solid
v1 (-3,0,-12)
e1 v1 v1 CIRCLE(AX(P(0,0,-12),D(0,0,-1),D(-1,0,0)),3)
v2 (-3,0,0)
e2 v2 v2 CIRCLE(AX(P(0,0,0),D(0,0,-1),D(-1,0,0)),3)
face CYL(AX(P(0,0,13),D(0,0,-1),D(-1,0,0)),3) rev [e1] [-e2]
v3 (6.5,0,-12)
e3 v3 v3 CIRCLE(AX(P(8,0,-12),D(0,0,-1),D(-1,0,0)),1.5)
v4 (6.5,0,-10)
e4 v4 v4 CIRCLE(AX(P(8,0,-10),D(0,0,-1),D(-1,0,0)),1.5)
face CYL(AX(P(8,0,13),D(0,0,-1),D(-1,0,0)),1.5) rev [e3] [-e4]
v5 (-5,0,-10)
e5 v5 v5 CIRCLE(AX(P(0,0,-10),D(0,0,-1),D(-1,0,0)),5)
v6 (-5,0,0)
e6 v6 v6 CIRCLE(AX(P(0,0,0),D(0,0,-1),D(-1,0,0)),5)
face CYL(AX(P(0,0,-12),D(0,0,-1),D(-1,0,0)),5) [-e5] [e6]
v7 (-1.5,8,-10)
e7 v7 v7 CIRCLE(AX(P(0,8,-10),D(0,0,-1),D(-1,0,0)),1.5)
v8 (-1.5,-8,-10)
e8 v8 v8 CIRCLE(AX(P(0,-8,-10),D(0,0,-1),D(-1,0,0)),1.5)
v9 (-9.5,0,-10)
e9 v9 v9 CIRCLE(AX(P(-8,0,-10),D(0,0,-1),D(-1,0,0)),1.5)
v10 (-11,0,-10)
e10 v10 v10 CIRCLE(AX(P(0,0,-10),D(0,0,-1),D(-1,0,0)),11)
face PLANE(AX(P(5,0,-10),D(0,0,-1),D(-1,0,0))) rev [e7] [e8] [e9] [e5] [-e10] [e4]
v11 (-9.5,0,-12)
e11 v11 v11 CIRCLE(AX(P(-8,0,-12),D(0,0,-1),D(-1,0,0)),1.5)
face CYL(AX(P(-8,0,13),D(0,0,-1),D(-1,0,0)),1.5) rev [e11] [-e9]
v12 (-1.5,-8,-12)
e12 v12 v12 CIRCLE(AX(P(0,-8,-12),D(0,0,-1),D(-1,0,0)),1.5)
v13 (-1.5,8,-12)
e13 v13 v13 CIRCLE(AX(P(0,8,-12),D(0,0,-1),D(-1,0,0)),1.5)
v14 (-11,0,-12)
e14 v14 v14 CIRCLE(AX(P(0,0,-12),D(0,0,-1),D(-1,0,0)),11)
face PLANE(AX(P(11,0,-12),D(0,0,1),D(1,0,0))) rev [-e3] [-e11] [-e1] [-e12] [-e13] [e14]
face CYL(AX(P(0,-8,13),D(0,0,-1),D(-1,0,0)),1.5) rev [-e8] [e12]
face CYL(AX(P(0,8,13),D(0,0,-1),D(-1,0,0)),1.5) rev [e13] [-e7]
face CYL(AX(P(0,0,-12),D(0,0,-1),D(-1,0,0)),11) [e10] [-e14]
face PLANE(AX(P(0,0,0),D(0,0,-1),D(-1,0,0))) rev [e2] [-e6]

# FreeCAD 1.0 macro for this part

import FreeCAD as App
import Part
import Sketcher
from FreeCAD import Vector
Q = App.Units.Quantity


def add_polygon(sketch, points):
    """Adds a closed chain of lines whose ends are joined by coincident constraints."""
    first, n = sketch.GeometryCount, len(points)
    for a, b in zip(points, points[1:] + points[:1]):
        sketch.addGeometry(Part.LineSegment(App.Vector(*a, 0), App.Vector(*b, 0)), False)
    for i in range(n):
        sketch.addConstraint(Sketcher.Constraint("Coincident", first + i, 2, first + (i + 1) % n, 1))

doc = App.newDocument("Part")
body = doc.addObject("PartDesign::Body", "Body")

sketch1 = body.newObject("Sketcher::SketchObject", "Sketch")
sketch1.AttachmentSupport = (doc.getObject("XZ_Plane"), [""])
sketch1.MapMode = "FlatFace"
add_polygon(sketch1, [(0, 0), (5, 0), (5, -10), (11, -10), (11, -12), (0, -12)])
sketch1.addConstraint(Sketcher.Constraint("Horizontal", 0))
sketch1.addConstraint(Sketcher.Constraint("Vertical", 1))
sketch1.addConstraint(Sketcher.Constraint("Horizontal", 2))
sketch1.addConstraint(Sketcher.Constraint("Vertical", 3))
sketch1.addConstraint(Sketcher.Constraint("Horizontal", 4))
sketch1.addConstraint(Sketcher.Constraint("Vertical", 5))
sketch1.addConstraint(Sketcher.Constraint("Coincident", 5, 2, -1, 1))
sketch1.addConstraint(Sketcher.Constraint("DistanceX", 0, 1, 0, 2, Q("5 mm")))
sketch1.addConstraint(Sketcher.Constraint("DistanceX", 2, 1, 2, 2, Q("6 mm")))
sketch1.addConstraint(Sketcher.Constraint("DistanceY", 1, 2, 1, 1, Q("10 mm")))
sketch1.addConstraint(Sketcher.Constraint("DistanceY", 3, 2, 3, 1, Q("2 mm")))
revolution = body.newObject("PartDesign::Revolution", "Revolution")
revolution.Profile = sketch1
revolution.ReferenceAxis = (sketch1, ["V_Axis"])
revolution.Angle = 360

sketch2 = body.newObject("Sketcher::SketchObject", "Sketch001")
sketch2.AttachmentSupport = (doc.getObject("XY_Plane"), [""])
sketch2.MapMode = "FlatFace"
sketch2.AttachmentOffset = App.Placement(Vector(0, 0, -12), App.Rotation())
sketch2.addGeometry(Part.Circle(Vector(-8, 0, 0), Vector(0, 0, 1), 1.5), False)
sketch2.addGeometry(Part.Circle(Vector(0, 0, 0), Vector(0, 0, 1), 3), False)
sketch2.addGeometry(Part.Circle(Vector(0, -8, 0), Vector(0, 0, 1), 1.5), False)
sketch2.addGeometry(Part.Circle(Vector(8, 0, 0), Vector(0, 0, 1), 1.5), False)
sketch2.addGeometry(Part.Circle(Vector(0, 8, 0), Vector(0, 0, 1), 1.5), False)
sketch2.addConstraint(Sketcher.Constraint("Coincident", 1, 3, -1, 1))
sketch2.addConstraint(Sketcher.Constraint("Equal", 0, 2))
sketch2.addConstraint(Sketcher.Constraint("Equal", 2, 3))
sketch2.addConstraint(Sketcher.Constraint("Equal", 3, 4))
sketch2.addConstraint(Sketcher.Constraint("Symmetric", 0, 3, 3, 3, -1, 1))
sketch2.addConstraint(Sketcher.Constraint("Symmetric", 2, 3, 4, 3, -1, 1))
sketch2.addConstraint(Sketcher.Constraint("PointOnObject", 0, 3, -1))
sketch2.addConstraint(Sketcher.Constraint("PointOnObject", 2, 3, -2))
sketch2.addConstraint(Sketcher.Constraint("Diameter", 0, Q("3 mm")))
sketch2.addConstraint(Sketcher.Constraint("Diameter", 1, Q("6 mm")))
sketch2.addConstraint(Sketcher.Constraint("DistanceX", 0, 3, -1, 1, Q("8 mm")))
sketch2.addConstraint(Sketcher.Constraint("DistanceY", 2, 3, -1, 1, Q("8 mm")))
pocket1 = body.newObject("PartDesign::Pocket", "Pocket")
pocket1.Profile = sketch2
pocket1.Length = 25
pocket1.Reversed = True

doc.recompute()
